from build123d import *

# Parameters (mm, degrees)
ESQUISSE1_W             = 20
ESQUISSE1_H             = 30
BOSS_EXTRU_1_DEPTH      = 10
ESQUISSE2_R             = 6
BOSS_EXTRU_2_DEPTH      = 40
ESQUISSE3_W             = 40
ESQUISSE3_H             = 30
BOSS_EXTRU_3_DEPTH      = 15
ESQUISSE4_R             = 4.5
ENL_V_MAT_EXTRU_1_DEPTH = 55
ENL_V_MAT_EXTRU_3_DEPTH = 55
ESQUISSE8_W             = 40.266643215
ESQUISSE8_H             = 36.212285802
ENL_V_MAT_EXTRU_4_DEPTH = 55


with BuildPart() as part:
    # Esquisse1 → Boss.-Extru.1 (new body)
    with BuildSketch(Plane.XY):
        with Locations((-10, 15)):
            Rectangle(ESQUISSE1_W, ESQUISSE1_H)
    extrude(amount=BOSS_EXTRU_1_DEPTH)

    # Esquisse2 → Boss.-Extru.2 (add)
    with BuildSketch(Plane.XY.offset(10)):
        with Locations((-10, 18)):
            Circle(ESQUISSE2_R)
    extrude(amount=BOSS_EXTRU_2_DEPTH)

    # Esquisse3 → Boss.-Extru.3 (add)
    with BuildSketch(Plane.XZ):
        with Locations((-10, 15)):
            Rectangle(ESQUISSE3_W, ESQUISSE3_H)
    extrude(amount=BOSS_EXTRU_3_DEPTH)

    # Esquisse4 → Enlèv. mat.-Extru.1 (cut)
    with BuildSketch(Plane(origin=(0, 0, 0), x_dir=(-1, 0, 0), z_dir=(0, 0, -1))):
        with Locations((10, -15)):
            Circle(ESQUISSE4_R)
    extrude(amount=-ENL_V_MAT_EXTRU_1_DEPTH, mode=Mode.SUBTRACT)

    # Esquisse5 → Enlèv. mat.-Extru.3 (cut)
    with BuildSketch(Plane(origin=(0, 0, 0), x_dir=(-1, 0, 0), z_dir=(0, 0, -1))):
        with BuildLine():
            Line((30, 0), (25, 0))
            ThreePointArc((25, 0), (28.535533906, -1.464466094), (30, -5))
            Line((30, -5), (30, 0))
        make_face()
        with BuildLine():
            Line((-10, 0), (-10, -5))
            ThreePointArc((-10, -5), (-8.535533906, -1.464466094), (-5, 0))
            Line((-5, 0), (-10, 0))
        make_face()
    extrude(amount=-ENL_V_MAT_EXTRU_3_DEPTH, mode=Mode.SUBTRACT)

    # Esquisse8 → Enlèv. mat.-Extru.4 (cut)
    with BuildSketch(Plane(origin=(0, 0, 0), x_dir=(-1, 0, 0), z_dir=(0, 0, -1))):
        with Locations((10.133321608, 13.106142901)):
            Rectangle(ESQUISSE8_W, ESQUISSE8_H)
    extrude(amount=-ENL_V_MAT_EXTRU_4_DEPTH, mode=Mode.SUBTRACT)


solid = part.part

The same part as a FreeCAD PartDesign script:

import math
import FreeCAD as App
import Part
import Sketcher
from FreeCAD import Vector

doc = App.newDocument("Part")
body = doc.addObject("PartDesign::Body", "Body")

sketch1 = doc.addObject("Sketcher::SketchObject", "Sketch")
body.addObject(sketch1)
sketch1.AttachmentSupport = (doc.XY_Plane, [""])
sketch1.MapMode = "FlatFace"
sketch1.addGeometry([
    Part.LineSegment(Vector(-20, 30, 0), Vector(-20, 0, 0)),
    Part.LineSegment(Vector(-20, 0, 0), Vector(0, 0, 0)),
    Part.LineSegment(Vector(0, 0, 0), Vector(0, 30, 0)),
    Part.LineSegment(Vector(0, 30, 0), Vector(-20, 30, 0)),
], False)
sketch1.addConstraint([
    Sketcher.Constraint("Coincident", 0, 2, 1, 1),
    Sketcher.Constraint("Coincident", 1, 2, 2, 1),
    Sketcher.Constraint("Coincident", 2, 2, 3, 1),
    Sketcher.Constraint("Coincident", 3, 2, 0, 1),
    Sketcher.Constraint("Vertical", 0),
    Sketcher.Constraint("Horizontal", 1),
    Sketcher.Constraint("Vertical", 2),
    Sketcher.Constraint("Horizontal", 3),
    Sketcher.Constraint("Coincident", 1, 2, -1, 1),
    Sketcher.Constraint("DistanceX", 1, 1, 1, 2, 20.0),
    Sketcher.Constraint("DistanceY", 0, 2, 0, 1, 30.0),
])
pad1 = doc.addObject("PartDesign::Pad", "Pad")
body.addObject(pad1)
pad1.Profile = sketch1
pad1.Length = 10

sketch2 = doc.addObject("Sketcher::SketchObject", "Sketch001")
body.addObject(sketch2)
sketch2.AttachmentSupport = (doc.XY_Plane, [""])
sketch2.MapMode = "FlatFace"
sketch2.AttachmentOffset = App.Placement(Vector(0, 0, 10), App.Rotation())
sketch2.addGeometry(Part.Circle(Vector(-10, 18, 0), Vector(0, 0, 1), 6), False)
sketch2.addConstraint([
    Sketcher.Constraint("Diameter", 0, 12.0),
    Sketcher.Constraint("DistanceX", 0, 3, -1, 1, 10.0),
    Sketcher.Constraint("DistanceY", -1, 1, 0, 3, 18.0),
])
pad2 = doc.addObject("PartDesign::Pad", "Pad001")
body.addObject(pad2)
pad2.Profile = sketch2
pad2.Length = 40

sketch3 = doc.addObject("Sketcher::SketchObject", "Sketch002")
body.addObject(sketch3)
sketch3.AttachmentSupport = (doc.XZ_Plane, [""])
sketch3.MapMode = "FlatFace"
sketch3.addGeometry([
    Part.LineSegment(Vector(-30, 30, 0), Vector(-30, 0, 0)),
    Part.LineSegment(Vector(-30, 0, 0), Vector(10, 0, 0)),
    Part.LineSegment(Vector(10, 0, 0), Vector(10, 30, 0)),
    Part.LineSegment(Vector(10, 30, 0), Vector(-30, 30, 0)),
], False)
sketch3.addConstraint([
    Sketcher.Constraint("Coincident", 0, 2, 1, 1),
    Sketcher.Constraint("Coincident", 1, 2, 2, 1),
    Sketcher.Constraint("Coincident", 2, 2, 3, 1),
    Sketcher.Constraint("Coincident", 3, 2, 0, 1),
    Sketcher.Constraint("Vertical", 0),
    Sketcher.Constraint("Horizontal", 1),
    Sketcher.Constraint("Vertical", 2),
    Sketcher.Constraint("Horizontal", 3),
    Sketcher.Constraint("PointOnObject", 0, 2, -1),
    Sketcher.Constraint("DistanceX", 1, 1, 1, 2, 40.0),
    Sketcher.Constraint("DistanceY", 0, 2, 0, 1, 30.0),
    Sketcher.Constraint("DistanceX", 0, 2, -1, 1, 30.0),
])
pad3 = doc.addObject("PartDesign::Pad", "Pad002")
body.addObject(pad3)
pad3.Profile = sketch3
pad3.Length = 15

sketch4 = doc.addObject("Sketcher::SketchObject", "Sketch003")
body.addObject(sketch4)
sketch4.AttachmentSupport = (doc.XY_Plane, [""])
sketch4.MapMode = "FlatFace"
sketch4.addGeometry(Part.Circle(Vector(-10, -15, 0), Vector(0, 0, 1), 4.5), False)
sketch4.addConstraint([
    Sketcher.Constraint("Diameter", 0, 9.0),
    Sketcher.Constraint("DistanceX", 0, 3, -1, 1, 10.0),
    Sketcher.Constraint("DistanceY", 0, 3, -1, 1, 15.0),
])
pocket1 = doc.addObject("PartDesign::Pocket", "Pocket")
body.addObject(pocket1)
pocket1.Profile = sketch4
pocket1.Length = 55
pocket1.Reversed = True

sketch5 = doc.addObject("Sketcher::SketchObject", "Sketch004")
body.addObject(sketch5)
sketch5.AttachmentSupport = (doc.XY_Plane, [""])
sketch5.MapMode = "FlatFace"
sketch5.addGeometry([
    Part.LineSegment(Vector(-30, 0, 0), Vector(-25, 0, 0)),
    Part.ArcOfCircle(Part.Circle(Vector(-25, -5, 0), Vector(0, 0, 1), 5), math.radians(90), math.radians(180)),
    Part.LineSegment(Vector(-30, -5, 0), Vector(-30, 0, 0)),
    Part.LineSegment(Vector(10, 0, 0), Vector(10, -5, 0)),
    Part.ArcOfCircle(Part.Circle(Vector(5, -5, 0), Vector(0, 0, 1), 5), math.radians(0), math.radians(90)),
    Part.LineSegment(Vector(5, 0, 0), Vector(10, 0, 0)),
], False)
sketch5.addConstraint([
    Sketcher.Constraint("Tangent", 0, 2, 1, 1),
    Sketcher.Constraint("Tangent", 1, 2, 2, 1),
    Sketcher.Constraint("Coincident", 2, 2, 0, 1),
    Sketcher.Constraint("Tangent", 3, 2, 4, 1),
    Sketcher.Constraint("Tangent", 4, 2, 5, 1),
    Sketcher.Constraint("Coincident", 5, 2, 3, 1),
    Sketcher.Constraint("Horizontal", 0),
    Sketcher.Constraint("Vertical", 2),
    Sketcher.Constraint("Vertical", 3),
    Sketcher.Constraint("Horizontal", 5),
    Sketcher.Constraint("Equal", 1, 4),
    Sketcher.Constraint("PointOnObject", 0, 2, -1),
    Sketcher.Constraint("PointOnObject", 4, 2, -1),
    Sketcher.Constraint("Radius", 1, 5.0),
    Sketcher.Constraint("DistanceX", 1, 3, -1, 1, 25.0),
    Sketcher.Constraint("DistanceX", -1, 1, 4, 3, 5.0),
])
pocket2 = doc.addObject("PartDesign::Pocket", "Pocket001")
body.addObject(pocket2)
pocket2.Profile = sketch5
pocket2.Length = 55
pocket2.Reversed = True

sketch6 = doc.addObject("Sketcher::SketchObject", "Sketch005")
body.addObject(sketch6)
sketch6.AttachmentSupport = (doc.XY_Plane, [""])
sketch6.MapMode = "FlatFace"
sketch6.addGeometry([
    Part.LineSegment(Vector(10, 31.212286, 0), Vector(10, -5, 0)),
    Part.LineSegment(Vector(10, -5, 0), Vector(-30.266643, -5, 0)),
    Part.LineSegment(Vector(-30.266643, -5, 0), Vector(-30.266643, 31.212286, 0)),
    Part.LineSegment(Vector(-30.266643, 31.212286, 0), Vector(10, 31.212286, 0)),
], False)
sketch6.addConstraint([
    Sketcher.Constraint("Coincident", 0, 2, 1, 1),
    Sketcher.Constraint("Coincident", 1, 2, 2, 1),
    Sketcher.Constraint("Coincident", 2, 2, 3, 1),
    Sketcher.Constraint("Coincident", 3, 2, 0, 1),
    Sketcher.Constraint("Vertical", 0),
    Sketcher.Constraint("Horizontal", 1),
    Sketcher.Constraint("Vertical", 2),
    Sketcher.Constraint("Horizontal", 3),
    Sketcher.Constraint("DistanceX", -1, 1, 0, 2, 10.0),
    Sketcher.Constraint("DistanceY", 0, 2, -1, 1, 5.0),
    Sketcher.Constraint("DistanceX", 1, 2, 1, 1, 40.266643),
    Sketcher.Constraint("DistanceY", 0, 2, 0, 1, 36.212286),
])
pocket3 = doc.addObject("PartDesign::Pocket", "Pocket002")
body.addObject(pocket3)
pocket3.Profile = sketch6
pocket3.Length = 55
pocket3.Reversed = True

doc.recompute()
